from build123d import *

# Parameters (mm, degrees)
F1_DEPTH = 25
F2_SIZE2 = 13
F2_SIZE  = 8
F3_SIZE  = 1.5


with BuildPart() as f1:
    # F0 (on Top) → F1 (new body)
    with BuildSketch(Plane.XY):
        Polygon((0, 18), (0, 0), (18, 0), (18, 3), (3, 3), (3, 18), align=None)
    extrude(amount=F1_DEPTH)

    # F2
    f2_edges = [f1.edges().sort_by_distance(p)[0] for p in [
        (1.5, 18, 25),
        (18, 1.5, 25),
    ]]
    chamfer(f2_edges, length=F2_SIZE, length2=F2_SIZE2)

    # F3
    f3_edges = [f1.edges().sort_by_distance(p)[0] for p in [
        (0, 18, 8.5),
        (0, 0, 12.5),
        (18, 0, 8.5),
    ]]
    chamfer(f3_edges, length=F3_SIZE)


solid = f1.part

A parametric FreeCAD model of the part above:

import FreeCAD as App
import Part
import Sketcher
Q = App.Units.Quantity


def edges_at(feature, points):
    """Names of the edges that pass closest to the given points."""
    edges = feature.Shape.Edges
    near = lambda p: min(range(len(edges)), key=lambda i: edges[i].distToShape(Part.Vertex(*p))[0])
    return sorted({f"Edge{near(p) + 1}" for p in points})

doc = App.newDocument("Part")
params = doc.addObject("Spreadsheet::Sheet", "Params")
for row, (alias, value) in enumerate([
    ("sketch1_width", "18 mm"),
    ("sketch1_width2", "15 mm"),
    ("pad1_length", "25 mm"),
    ("chamfer_size", "8 mm"),
    ("chamfer_size2", "13 mm"),
    ("chamfer2_size", "1.5 mm"),
], start=1):
    params.set(f"A{row}", alias)
    params.set(f"B{row}", "=" + value)
    params.setAlias(f"B{row}", alias)

body = doc.addObject("PartDesign::Body", "Body")

# Sketch on XY plane
sketch1 = body.newObject("Sketcher::SketchObject", "Sketch")
sketch1.AttachmentSupport = (doc.getObject("XY_Plane"), [""])
sketch1.MapMode = "FlatFace"
sketch1.addGeometry([
    Part.LineSegment(App.Vector(0, 18, 0), App.Vector(0, 0, 0)),  # 0
    Part.LineSegment(App.Vector(0, 0, 0), App.Vector(18, 0, 0)),  # 1
    Part.LineSegment(App.Vector(18, 0, 0), App.Vector(18, 3, 0)),  # 2
    Part.LineSegment(App.Vector(18, 3, 0), App.Vector(3, 3, 0)),  # 3
    Part.LineSegment(App.Vector(3, 3, 0), App.Vector(3, 18, 0)),  # 4
    Part.LineSegment(App.Vector(3, 18, 0), App.Vector(0, 18, 0)),  # 5
], False)
sketch1.addConstraint([
    Sketcher.Constraint("Coincident", 0, 2, 1, 1),
    Sketcher.Constraint("Coincident", 1, 2, 2, 1),
    Sketcher.Constraint("Coincident", 2, 2, 3, 1),
    Sketcher.Constraint("Coincident", 3, 2, 4, 1),
    Sketcher.Constraint("Coincident", 4, 2, 5, 1),
    Sketcher.Constraint("Coincident", 5, 2, 0, 1),
    Sketcher.Constraint("Vertical", 0),
    Sketcher.Constraint("Horizontal", 1),
    Sketcher.Constraint("Vertical", 2),
    Sketcher.Constraint("Horizontal", 3),
    Sketcher.Constraint("Vertical", 4),
    Sketcher.Constraint("Horizontal", 5),
    Sketcher.Constraint("Coincident", 0, 2, -1, 1),
    Sketcher.Constraint("Equal", 1, 0),
    Sketcher.Constraint("Equal", 5, 2),
    Sketcher.Constraint("DistanceX", 1, 1, 1, 2, Q("18 mm")),
    Sketcher.Constraint("DistanceX", 3, 2, 3, 1, Q("15 mm")),
])
sketch1.setExpression("Constraints[15]", "Params.sketch1_width")
sketch1.setExpression("Constraints[16]", "Params.sketch1_width2")
pad1 = body.newObject("PartDesign::Pad", "Pad")
pad1.Profile = sketch1
pad1.setExpression("Length", "Params.pad1_length")
doc.recompute()

chamfer = body.newObject("PartDesign::Chamfer", "Chamfer")
chamfer.Base = (pad1, edges_at(pad1, [(1.5, 18, 25), (18, 1.5, 25)]))
chamfer.ChamferType = "Two distances"
chamfer.setExpression("Size", "Params.chamfer_size")
chamfer.setExpression("Size2", "Params.chamfer_size2")
doc.recompute()

chamfer2 = body.newObject("PartDesign::Chamfer", "Chamfer001")
chamfer2.Base = (chamfer, edges_at(chamfer, [(0, 18, 8.5), (0, 0, 12.5), (18, 0, 8.5)]))
chamfer2.setExpression("Size", "Params.chamfer2_size")

doc.recompute()
